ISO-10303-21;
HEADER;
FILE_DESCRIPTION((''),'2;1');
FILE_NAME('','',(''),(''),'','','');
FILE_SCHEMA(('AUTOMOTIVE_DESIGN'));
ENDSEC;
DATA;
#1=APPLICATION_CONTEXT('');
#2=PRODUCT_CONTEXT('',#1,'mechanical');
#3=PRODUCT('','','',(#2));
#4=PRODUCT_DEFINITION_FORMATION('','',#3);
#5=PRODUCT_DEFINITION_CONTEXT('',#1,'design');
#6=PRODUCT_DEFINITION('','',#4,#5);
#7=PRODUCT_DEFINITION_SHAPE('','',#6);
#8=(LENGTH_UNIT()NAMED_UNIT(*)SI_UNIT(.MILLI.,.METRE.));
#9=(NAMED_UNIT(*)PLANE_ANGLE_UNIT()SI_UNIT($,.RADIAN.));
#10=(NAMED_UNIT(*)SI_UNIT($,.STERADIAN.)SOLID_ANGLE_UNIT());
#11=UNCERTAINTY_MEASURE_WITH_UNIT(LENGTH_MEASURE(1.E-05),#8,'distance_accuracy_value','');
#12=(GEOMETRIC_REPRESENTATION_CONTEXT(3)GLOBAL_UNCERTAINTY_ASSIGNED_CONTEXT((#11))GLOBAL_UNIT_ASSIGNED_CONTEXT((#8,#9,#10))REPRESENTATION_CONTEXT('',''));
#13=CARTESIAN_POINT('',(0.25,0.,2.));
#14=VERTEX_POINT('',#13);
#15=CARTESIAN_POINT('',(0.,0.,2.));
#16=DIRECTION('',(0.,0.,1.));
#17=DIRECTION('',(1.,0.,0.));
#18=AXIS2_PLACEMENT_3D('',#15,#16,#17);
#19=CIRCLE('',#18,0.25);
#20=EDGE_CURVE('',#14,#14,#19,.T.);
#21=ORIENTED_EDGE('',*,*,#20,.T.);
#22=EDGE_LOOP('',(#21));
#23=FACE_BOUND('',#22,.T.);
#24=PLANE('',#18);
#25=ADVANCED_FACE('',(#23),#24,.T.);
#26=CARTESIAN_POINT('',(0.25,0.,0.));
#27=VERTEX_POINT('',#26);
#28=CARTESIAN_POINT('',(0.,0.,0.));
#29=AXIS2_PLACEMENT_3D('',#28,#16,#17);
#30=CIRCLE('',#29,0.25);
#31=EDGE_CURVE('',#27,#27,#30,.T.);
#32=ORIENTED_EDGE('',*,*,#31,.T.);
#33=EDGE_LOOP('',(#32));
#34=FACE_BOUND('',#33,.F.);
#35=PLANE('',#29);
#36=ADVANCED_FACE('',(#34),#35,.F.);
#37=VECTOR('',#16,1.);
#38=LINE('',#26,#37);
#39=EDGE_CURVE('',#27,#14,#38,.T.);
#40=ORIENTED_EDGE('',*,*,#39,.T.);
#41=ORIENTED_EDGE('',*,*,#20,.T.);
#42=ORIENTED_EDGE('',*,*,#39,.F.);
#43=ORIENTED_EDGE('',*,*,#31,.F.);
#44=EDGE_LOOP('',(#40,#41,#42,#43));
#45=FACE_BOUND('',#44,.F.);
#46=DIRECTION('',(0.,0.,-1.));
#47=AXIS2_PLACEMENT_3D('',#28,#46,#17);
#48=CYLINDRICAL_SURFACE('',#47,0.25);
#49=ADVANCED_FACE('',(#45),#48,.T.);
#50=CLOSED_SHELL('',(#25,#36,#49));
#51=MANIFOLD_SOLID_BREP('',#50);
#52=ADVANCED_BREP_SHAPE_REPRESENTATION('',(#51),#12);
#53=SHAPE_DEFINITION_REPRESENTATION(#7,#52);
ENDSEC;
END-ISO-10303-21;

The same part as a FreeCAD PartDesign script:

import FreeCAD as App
import Part
import Sketcher
from FreeCAD import Vector
Q = App.Units.Quantity

doc = App.newDocument("Part")
params = doc.addObject("Spreadsheet::Sheet", "Params")
for row, (alias, value) in enumerate([
    ("sketch1_diameter", "0.5 mm"),
    ("pad1_length", "2 mm"),
], start=1):
    params.set(f"A{row}", alias)
    params.set(f"B{row}", "=" + value)
    params.setAlias(f"B{row}", alias)

body = doc.addObject("PartDesign::Body", "Body")

sketch1 = doc.addObject("Sketcher::SketchObject", "Sketch")
body.addObject(sketch1)
sketch1.AttachmentSupport = (doc.XY_Plane, [""])
sketch1.MapMode = "FlatFace"
sketch1.addGeometry(Part.Circle(Vector(0, 0, 0), Vector(0, 0, 1), 0.25), False)
sketch1.addConstraint(Sketcher.Constraint("Coincident", 0, 3, -1, 1))
sketch1.addConstraint(Sketcher.Constraint("Diameter", 0, Q("0.5 mm")))
sketch1.setExpression("Constraints[1]", "Params.sketch1_diameter")
pad1 = doc.addObject("PartDesign::Pad", "Pad")
body.addObject(pad1)
pad1.Profile = sketch1
pad1.setExpression("Length", "Params.pad1_length")

doc.recompute()
